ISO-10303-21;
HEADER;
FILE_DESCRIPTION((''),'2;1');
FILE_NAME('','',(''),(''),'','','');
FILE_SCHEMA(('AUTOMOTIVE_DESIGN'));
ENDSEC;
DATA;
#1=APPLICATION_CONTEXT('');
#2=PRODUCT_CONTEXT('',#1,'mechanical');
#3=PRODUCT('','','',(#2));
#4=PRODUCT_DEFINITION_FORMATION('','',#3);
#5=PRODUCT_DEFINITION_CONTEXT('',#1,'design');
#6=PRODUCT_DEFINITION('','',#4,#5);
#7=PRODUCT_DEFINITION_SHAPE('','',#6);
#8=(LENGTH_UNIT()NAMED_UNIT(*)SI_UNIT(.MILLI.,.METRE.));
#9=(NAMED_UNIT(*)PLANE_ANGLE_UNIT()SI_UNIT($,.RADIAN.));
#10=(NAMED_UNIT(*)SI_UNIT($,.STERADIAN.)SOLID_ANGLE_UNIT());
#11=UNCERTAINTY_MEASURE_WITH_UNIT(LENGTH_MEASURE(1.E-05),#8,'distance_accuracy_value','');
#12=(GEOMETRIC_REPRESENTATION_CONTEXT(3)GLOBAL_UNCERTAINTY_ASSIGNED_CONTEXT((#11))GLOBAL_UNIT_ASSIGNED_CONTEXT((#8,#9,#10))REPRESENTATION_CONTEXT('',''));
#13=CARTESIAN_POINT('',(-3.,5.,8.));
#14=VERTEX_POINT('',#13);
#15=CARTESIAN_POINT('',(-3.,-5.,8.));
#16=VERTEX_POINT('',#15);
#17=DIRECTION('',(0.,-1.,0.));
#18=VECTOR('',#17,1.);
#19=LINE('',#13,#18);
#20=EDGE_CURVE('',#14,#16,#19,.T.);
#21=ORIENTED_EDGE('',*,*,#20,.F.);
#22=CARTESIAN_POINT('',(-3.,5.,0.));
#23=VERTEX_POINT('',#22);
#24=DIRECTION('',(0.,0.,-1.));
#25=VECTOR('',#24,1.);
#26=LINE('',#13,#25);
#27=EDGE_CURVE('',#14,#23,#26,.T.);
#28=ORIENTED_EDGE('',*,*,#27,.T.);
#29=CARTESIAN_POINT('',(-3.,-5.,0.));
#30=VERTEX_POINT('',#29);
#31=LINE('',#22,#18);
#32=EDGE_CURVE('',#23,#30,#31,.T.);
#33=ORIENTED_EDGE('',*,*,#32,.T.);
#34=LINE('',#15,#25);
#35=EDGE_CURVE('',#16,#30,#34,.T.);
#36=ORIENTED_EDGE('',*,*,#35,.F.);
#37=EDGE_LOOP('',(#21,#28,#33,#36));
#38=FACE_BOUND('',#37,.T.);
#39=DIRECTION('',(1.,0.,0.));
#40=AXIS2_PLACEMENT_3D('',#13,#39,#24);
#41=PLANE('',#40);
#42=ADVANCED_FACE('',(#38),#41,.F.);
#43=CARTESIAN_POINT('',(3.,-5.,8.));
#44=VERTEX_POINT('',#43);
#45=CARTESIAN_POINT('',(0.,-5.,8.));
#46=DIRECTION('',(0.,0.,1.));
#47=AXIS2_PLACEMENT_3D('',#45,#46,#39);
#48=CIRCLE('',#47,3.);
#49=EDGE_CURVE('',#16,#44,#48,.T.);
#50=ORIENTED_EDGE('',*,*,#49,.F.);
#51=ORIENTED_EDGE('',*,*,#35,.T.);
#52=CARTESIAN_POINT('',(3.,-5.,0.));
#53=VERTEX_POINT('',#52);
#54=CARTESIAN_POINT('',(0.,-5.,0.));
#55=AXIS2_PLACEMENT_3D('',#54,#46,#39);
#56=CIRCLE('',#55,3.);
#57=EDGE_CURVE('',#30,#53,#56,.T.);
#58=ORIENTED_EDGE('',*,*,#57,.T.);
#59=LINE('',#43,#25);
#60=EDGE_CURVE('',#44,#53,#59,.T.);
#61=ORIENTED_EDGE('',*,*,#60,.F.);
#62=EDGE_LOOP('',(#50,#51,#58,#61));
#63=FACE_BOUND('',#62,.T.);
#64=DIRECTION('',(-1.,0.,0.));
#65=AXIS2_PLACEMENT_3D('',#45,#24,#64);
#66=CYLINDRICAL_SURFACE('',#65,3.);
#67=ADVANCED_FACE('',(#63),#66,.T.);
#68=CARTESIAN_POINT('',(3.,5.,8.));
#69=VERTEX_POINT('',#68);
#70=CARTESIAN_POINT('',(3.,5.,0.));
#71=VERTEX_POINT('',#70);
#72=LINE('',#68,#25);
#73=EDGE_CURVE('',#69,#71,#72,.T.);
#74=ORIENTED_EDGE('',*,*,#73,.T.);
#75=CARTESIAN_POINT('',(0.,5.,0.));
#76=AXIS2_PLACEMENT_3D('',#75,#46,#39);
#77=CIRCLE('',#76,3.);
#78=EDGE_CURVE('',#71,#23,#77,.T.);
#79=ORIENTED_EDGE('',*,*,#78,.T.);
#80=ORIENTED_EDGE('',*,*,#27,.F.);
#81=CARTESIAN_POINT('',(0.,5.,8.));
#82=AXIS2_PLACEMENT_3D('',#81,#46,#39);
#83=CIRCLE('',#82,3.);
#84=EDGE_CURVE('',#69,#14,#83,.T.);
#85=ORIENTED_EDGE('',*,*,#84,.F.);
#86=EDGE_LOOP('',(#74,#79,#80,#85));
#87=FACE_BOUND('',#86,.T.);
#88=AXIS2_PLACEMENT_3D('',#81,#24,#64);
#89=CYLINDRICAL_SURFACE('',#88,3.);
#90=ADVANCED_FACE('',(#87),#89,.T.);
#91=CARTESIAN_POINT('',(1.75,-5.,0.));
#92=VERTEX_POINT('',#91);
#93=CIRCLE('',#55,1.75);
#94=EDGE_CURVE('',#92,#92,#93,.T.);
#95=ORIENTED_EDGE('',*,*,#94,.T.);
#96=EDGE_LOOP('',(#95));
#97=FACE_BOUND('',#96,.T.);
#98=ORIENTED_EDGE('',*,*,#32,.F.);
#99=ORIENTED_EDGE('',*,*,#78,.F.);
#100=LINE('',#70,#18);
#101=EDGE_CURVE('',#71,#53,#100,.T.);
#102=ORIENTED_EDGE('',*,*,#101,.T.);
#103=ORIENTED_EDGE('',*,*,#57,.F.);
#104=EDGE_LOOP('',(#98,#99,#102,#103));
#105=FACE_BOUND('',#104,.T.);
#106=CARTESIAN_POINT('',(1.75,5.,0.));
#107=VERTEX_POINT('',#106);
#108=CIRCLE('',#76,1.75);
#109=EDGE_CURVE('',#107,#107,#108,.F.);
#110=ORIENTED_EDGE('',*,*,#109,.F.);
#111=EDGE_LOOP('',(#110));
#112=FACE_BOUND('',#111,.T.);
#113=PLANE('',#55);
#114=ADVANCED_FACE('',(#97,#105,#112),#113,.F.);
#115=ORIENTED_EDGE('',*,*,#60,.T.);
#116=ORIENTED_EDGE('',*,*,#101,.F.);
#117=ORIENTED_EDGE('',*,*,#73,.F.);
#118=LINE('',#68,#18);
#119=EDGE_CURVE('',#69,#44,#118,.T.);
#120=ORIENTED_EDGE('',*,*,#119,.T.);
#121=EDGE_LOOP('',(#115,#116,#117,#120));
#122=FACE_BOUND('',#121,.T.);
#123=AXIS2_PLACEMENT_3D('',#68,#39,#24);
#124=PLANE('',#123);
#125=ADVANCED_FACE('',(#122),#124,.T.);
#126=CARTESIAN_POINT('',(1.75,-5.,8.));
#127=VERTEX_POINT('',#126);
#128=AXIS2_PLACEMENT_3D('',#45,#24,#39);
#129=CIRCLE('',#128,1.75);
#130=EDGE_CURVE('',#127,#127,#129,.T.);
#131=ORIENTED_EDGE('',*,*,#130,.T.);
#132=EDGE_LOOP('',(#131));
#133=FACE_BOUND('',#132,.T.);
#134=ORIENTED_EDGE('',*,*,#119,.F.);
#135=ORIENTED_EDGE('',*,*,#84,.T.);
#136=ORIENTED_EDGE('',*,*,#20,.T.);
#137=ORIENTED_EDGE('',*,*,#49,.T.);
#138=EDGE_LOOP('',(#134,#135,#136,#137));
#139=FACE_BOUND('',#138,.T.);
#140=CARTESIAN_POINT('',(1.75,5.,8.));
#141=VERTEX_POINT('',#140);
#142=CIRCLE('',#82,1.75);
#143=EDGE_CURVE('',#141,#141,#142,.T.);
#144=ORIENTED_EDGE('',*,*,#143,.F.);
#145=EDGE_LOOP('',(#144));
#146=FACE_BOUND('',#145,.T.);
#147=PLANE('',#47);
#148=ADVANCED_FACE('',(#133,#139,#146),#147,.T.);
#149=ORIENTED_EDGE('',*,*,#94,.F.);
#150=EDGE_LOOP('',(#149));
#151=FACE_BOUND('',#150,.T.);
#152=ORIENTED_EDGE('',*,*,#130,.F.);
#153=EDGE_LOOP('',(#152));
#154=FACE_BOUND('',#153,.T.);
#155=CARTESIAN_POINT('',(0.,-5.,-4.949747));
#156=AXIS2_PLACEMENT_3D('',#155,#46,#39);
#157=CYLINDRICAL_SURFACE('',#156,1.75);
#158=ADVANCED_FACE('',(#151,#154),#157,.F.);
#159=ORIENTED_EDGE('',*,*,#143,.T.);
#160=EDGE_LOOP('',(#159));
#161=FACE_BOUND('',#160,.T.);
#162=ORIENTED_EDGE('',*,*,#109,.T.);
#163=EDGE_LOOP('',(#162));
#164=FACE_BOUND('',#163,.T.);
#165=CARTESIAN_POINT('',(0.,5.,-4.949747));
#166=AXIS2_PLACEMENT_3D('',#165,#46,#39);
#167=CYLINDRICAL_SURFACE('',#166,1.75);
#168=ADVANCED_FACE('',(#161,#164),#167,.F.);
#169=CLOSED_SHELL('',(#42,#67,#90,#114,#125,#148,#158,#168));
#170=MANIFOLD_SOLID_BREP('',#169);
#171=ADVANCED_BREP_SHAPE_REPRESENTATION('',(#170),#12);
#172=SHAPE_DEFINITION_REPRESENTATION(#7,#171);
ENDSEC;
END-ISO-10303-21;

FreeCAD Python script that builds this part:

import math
import FreeCAD as App
import Part
import Sketcher

V = App.Vector

doc = App.newDocument("Part")
body = doc.addObject("PartDesign::Body", "Body")

# Sketch on XY plane
sketch1 = body.newObject("Sketcher::SketchObject", "Sketch")
sketch1.AttachmentSupport = (doc.getObject("XY_Plane"), [""])
sketch1.MapMode = "FlatFace"
sketch1.addGeometry([
    Part.LineSegment(V(-3, 5, 0), V(-3, -5, 0)),
    Part.ArcOfCircle(Part.Circle(V(0, -5, 0), V(0, 0, 1), 3), math.radians(180), math.radians(360)),
    Part.LineSegment(V(3, -5, 0), V(3, 5, 0)),
    Part.ArcOfCircle(Part.Circle(V(0, 5, 0), V(0, 0, 1), 3), math.radians(0), math.radians(180)),
], False)
sketch1.addConstraint([
    Sketcher.Constraint("Tangent", 0, 2, 1, 1),
    Sketcher.Constraint("Tangent", 1, 2, 2, 1),
    Sketcher.Constraint("Tangent", 2, 2, 3, 1),
    Sketcher.Constraint("Tangent", 3, 2, 0, 1),
    Sketcher.Constraint("Vertical", 0),
    Sketcher.Constraint("Vertical", 2),
    Sketcher.Constraint("Symmetric", 1, 3, 3, 3, -1, 1),
    Sketcher.Constraint("Radius", 1, 3.0),
    Sketcher.Constraint("DistanceY", 0, 2, 0, 1, 10.0),
])
pad1 = body.newObject("PartDesign::Pad", "Pad")
pad1.Profile = sketch1
pad1.Length = 8

# Sketch on XY plane
sketch2 = body.newObject("Sketcher::SketchObject", "Sketch001")
sketch2.AttachmentSupport = (doc.getObject("XY_Plane"), [""])
sketch2.MapMode = "FlatFace"
sketch2.AttachmentOffset = App.Placement(V(0, 0, 8), App.Rotation())
sketch2.addGeometry(Part.Circle(V(0, 5, 0), V(0, 0, 1), 1.8), False)
sketch2.addConstraint([
    Sketcher.Constraint("PointOnObject", 0, 3, -2),
    Sketcher.Constraint("Diameter", 0, 3.5),
    Sketcher.Constraint("DistanceY", -1, 1, 0, 3, 5.0),
])
pocket1 = body.newObject("PartDesign::Pocket", "Pocket")
pocket1.Profile = sketch2
pocket1.Length = 8
doc.recompute()

mirrored = body.newObject("PartDesign::Mirrored", "Mirrored")
mirrored.Originals = [pocket1]
mirrored.MirrorPlane = (doc.getObject("XZ_Plane"), [""])
body.Tip = mirrored

doc.recompute()
